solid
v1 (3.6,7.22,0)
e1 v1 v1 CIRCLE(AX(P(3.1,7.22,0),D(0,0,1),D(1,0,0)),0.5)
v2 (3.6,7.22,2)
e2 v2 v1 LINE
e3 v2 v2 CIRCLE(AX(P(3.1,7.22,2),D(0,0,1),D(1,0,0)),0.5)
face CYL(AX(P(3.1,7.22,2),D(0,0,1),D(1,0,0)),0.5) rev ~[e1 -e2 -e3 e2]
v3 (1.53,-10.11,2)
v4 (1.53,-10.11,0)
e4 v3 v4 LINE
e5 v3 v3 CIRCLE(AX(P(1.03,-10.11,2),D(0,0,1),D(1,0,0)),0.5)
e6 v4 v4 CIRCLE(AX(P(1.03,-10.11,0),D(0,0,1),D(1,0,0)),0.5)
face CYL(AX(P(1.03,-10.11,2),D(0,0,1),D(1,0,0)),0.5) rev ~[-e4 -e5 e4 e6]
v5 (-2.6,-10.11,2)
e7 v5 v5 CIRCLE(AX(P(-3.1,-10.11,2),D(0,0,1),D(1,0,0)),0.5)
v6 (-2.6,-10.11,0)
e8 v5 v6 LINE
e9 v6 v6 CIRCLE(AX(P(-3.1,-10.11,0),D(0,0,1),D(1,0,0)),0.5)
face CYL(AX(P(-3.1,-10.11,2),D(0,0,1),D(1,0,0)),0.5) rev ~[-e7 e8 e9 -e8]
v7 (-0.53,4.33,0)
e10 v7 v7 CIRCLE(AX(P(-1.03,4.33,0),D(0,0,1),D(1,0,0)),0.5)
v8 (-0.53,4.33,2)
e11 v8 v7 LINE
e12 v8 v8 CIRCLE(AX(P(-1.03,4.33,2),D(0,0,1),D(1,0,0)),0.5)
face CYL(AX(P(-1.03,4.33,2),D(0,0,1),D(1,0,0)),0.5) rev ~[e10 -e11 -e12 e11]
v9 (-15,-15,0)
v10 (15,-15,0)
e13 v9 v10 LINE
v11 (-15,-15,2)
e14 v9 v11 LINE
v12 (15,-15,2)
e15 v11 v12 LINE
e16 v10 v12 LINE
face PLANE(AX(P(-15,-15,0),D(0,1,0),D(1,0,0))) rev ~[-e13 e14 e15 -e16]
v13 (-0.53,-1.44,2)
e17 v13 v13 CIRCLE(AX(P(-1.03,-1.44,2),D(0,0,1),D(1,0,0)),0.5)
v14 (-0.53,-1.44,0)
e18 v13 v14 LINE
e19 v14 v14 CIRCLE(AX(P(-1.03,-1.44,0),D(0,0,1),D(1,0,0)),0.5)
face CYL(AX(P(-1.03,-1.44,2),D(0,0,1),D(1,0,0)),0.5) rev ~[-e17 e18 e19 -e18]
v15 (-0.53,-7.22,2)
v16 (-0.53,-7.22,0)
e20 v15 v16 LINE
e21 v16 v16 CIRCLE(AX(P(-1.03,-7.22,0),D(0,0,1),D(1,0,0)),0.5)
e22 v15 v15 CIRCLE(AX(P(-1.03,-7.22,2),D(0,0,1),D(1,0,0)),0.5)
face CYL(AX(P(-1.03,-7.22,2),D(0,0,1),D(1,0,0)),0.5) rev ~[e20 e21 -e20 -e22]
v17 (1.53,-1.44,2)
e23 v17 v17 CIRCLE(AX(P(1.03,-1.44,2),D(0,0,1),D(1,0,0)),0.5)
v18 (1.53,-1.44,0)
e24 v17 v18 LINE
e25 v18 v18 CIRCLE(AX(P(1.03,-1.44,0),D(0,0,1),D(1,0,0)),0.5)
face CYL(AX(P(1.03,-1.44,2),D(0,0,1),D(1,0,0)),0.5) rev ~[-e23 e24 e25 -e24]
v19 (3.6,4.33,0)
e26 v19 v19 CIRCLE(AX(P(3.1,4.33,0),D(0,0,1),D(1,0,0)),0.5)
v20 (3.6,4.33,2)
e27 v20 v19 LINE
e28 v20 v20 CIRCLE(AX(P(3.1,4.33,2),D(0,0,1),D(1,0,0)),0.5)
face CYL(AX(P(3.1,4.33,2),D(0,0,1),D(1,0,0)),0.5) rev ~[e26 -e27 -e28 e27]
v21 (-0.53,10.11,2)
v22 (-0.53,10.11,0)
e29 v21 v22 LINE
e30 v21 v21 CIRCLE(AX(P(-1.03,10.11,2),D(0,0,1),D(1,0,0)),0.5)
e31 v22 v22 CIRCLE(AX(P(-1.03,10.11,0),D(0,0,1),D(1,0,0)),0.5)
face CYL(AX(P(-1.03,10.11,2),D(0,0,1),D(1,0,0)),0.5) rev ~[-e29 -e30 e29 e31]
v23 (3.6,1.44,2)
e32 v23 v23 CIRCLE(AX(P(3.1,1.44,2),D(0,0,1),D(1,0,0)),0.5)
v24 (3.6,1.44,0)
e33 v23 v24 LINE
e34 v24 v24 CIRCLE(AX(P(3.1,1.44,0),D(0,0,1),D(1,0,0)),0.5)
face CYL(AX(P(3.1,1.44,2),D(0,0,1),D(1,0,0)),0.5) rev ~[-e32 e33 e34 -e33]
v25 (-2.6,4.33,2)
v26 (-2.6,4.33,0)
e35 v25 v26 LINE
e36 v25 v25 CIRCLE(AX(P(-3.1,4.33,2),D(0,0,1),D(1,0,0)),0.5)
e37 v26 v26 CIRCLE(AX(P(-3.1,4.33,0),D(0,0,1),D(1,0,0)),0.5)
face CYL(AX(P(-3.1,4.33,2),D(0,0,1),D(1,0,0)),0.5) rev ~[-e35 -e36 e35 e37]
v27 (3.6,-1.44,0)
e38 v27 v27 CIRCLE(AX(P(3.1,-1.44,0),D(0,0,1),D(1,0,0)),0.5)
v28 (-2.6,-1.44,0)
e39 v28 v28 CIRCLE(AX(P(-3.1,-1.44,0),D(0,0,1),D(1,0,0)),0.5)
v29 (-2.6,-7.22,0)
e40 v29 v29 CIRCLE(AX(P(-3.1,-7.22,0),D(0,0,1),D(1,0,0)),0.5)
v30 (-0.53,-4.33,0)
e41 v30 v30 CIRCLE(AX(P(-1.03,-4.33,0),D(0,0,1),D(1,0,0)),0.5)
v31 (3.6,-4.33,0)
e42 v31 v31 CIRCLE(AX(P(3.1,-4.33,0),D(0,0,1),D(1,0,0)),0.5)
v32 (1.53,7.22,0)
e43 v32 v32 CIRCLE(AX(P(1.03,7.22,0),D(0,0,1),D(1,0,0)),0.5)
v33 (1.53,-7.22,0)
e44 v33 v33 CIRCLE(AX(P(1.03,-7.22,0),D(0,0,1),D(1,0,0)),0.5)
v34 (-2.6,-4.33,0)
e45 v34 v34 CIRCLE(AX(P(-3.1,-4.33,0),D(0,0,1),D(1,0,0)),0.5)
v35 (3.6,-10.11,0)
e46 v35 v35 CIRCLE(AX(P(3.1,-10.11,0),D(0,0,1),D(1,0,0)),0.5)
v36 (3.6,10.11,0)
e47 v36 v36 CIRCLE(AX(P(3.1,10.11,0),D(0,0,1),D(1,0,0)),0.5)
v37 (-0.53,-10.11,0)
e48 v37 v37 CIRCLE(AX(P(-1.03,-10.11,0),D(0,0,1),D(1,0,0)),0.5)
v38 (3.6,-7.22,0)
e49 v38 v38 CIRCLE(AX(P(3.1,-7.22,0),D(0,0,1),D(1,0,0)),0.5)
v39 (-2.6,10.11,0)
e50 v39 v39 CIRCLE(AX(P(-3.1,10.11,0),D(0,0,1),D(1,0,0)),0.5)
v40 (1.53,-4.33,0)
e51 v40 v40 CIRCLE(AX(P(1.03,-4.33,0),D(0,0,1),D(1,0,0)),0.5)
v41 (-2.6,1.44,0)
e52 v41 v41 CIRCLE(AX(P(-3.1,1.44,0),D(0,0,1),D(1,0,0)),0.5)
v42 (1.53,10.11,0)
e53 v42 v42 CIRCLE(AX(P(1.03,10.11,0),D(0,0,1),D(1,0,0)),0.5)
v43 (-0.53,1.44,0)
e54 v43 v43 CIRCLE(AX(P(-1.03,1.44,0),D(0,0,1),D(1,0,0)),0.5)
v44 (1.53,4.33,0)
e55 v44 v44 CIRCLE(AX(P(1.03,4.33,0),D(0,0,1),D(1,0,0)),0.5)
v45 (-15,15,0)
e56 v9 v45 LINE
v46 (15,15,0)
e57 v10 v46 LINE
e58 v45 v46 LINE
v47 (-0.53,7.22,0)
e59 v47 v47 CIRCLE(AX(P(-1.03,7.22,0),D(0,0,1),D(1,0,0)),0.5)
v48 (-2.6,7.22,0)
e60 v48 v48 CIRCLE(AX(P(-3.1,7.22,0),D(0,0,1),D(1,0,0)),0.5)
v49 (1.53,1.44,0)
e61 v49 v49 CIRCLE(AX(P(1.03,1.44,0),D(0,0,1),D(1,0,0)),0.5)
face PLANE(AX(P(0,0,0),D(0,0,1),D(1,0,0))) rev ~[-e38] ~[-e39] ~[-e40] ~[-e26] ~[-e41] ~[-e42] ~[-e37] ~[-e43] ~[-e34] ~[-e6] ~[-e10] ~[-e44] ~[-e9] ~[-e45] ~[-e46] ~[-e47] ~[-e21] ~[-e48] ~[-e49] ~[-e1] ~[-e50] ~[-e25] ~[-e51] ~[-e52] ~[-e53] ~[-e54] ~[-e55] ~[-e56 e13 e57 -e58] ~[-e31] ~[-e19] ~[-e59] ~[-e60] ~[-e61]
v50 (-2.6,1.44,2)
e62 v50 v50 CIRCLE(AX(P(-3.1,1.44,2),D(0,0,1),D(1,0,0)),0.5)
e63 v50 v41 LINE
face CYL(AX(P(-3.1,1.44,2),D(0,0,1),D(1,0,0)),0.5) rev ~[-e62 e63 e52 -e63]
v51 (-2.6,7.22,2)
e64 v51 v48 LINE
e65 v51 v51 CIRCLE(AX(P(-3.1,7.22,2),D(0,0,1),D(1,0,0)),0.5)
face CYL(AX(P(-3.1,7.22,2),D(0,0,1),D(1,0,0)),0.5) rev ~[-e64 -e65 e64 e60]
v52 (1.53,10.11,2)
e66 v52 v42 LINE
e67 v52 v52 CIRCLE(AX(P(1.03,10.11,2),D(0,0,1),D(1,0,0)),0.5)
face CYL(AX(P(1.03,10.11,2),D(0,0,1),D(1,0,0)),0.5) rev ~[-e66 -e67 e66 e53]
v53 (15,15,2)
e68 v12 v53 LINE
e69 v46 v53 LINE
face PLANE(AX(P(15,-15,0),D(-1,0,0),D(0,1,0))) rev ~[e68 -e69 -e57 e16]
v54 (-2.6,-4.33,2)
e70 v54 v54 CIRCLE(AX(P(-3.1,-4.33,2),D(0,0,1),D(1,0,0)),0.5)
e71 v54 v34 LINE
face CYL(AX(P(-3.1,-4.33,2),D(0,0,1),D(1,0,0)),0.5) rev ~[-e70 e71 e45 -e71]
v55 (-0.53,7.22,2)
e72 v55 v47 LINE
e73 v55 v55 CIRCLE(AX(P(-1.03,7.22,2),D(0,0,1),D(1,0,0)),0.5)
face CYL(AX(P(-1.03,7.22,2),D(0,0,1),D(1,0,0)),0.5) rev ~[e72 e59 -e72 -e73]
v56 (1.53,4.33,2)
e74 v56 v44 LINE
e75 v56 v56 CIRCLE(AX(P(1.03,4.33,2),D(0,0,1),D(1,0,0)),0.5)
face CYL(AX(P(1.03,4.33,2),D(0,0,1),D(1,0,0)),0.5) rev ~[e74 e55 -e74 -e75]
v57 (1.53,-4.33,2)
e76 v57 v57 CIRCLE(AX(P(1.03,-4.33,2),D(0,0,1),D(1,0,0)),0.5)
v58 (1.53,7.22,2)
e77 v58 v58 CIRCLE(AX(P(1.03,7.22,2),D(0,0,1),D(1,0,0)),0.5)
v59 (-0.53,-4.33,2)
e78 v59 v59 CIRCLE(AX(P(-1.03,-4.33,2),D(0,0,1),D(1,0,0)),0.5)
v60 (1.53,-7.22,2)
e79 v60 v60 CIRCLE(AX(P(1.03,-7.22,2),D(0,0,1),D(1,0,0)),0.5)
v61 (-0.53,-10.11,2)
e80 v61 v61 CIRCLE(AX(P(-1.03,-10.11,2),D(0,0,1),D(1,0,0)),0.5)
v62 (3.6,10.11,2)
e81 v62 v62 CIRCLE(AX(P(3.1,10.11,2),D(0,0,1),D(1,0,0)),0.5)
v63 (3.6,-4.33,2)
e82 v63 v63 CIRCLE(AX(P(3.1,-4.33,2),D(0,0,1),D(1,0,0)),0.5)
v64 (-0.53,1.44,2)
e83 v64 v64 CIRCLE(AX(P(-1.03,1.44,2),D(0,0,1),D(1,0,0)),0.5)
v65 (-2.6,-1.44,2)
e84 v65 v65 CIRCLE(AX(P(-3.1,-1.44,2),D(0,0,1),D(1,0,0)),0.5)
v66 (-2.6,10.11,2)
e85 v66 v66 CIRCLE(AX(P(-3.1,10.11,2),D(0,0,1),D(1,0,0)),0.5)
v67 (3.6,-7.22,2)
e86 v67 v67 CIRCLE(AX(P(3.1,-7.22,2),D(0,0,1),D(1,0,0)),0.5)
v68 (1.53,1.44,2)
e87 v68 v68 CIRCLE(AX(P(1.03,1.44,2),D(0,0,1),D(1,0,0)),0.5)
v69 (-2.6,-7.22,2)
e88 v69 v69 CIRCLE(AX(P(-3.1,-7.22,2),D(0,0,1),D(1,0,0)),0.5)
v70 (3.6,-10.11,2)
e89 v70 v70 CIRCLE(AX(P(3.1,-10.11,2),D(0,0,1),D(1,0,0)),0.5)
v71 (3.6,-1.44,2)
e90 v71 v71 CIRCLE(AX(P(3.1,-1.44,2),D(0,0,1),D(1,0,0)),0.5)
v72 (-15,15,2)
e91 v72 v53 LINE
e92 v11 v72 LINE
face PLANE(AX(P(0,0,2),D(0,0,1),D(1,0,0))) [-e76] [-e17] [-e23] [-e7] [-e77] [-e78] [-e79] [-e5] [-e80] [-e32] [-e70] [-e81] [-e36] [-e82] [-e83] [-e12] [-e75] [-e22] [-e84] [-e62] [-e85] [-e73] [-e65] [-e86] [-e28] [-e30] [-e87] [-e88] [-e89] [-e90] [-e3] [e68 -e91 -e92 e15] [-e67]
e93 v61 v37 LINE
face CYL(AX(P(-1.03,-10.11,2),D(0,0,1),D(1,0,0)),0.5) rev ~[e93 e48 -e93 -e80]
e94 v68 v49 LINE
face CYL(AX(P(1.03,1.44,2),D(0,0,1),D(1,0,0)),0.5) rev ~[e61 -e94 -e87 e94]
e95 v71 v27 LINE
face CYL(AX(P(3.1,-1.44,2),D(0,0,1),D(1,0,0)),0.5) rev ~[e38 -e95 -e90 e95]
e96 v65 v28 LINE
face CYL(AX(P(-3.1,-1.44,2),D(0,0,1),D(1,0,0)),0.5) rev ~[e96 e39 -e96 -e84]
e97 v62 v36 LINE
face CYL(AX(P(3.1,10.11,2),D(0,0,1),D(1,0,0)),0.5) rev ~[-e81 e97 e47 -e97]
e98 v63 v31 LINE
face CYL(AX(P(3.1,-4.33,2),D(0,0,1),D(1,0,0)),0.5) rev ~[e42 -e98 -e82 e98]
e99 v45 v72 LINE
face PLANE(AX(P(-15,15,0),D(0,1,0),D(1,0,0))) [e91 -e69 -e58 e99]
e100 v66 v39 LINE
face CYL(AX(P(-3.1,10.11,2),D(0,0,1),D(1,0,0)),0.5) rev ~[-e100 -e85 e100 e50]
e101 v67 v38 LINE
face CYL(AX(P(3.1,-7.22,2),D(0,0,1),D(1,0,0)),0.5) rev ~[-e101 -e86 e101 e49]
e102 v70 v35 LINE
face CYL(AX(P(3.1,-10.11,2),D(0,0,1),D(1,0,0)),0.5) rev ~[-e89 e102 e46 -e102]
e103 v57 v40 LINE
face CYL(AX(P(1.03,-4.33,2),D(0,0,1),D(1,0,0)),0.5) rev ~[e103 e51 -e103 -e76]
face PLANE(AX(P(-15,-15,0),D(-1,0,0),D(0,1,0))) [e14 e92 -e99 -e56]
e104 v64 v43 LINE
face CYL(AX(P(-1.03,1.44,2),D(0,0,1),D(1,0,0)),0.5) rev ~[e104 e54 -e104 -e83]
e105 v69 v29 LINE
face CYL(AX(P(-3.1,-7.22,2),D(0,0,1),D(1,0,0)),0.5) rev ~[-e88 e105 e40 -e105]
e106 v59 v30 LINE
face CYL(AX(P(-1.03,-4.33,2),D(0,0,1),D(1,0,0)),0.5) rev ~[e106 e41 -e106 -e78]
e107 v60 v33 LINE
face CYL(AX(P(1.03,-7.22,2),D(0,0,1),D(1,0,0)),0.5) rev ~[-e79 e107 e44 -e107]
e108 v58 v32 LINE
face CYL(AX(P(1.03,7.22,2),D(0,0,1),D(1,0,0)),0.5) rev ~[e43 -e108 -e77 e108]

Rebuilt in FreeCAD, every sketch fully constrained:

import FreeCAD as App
import Part
import Sketcher
Q = App.Units.Quantity


def add_polygon(sketch, points):
    """Adds a closed chain of lines whose ends are joined by coincident constraints."""
    first, n = sketch.GeometryCount, len(points)
    for a, b in zip(points, points[1:] + points[:1]):
        sketch.addGeometry(Part.LineSegment(App.Vector(*a, 0), App.Vector(*b, 0)), False)
    for i in range(n):
        sketch.addConstraint(Sketcher.Constraint("Coincident", first + i, 2, first + (i + 1) % n, 1))

doc = App.newDocument("Part")
params = doc.addObject("Spreadsheet::Sheet", "Params")
for row, (alias, value) in enumerate([
    ("sketch1_width", "30 mm"),
    ("pad1_length", "2 mm"),
    ("sketch2_diameter", "1 mm"),
    ("pocket1_length", "10 mm"),
], start=1):
    params.set(f"A{row}", alias)
    params.set(f"B{row}", "=" + value)
    params.setAlias(f"B{row}", alias)

body = doc.addObject("PartDesign::Body", "Body")

sketch1 = body.newObject("Sketcher::SketchObject", "Sketch")
sketch1.AttachmentSupport = (doc.getObject("XY_Plane"), [""])
sketch1.MapMode = "FlatFace"
add_polygon(sketch1, [(-15, 15), (-15, -15), (15, -15), (15, 15)])
sketch1.addConstraint(Sketcher.Constraint("Vertical", 0))
sketch1.addConstraint(Sketcher.Constraint("Horizontal", 1))
sketch1.addConstraint(Sketcher.Constraint("Vertical", 2))
sketch1.addConstraint(Sketcher.Constraint("Horizontal", 3))
sketch1.addConstraint(Sketcher.Constraint("Symmetric", 0, 2, 2, 2, -1, 1))
sketch1.addConstraint(Sketcher.Constraint("Equal", 3, 0))
sketch1.addConstraint(Sketcher.Constraint("DistanceX", 1, 1, 1, 2, Q("30 mm")))
sketch1.setExpression("Constraints[10]", "Params.sketch1_width")
pad1 = body.newObject("PartDesign::Pad", "Pad")
pad1.Profile = sketch1
pad1.setExpression("Length", "Params.pad1_length")

sketch2 = body.newObject("Sketcher::SketchObject", "Sketch001")
sketch2.AttachmentSupport = (doc.getObject("XY_Plane"), [""])
sketch2.MapMode = "FlatFace"
sketch2.AttachmentOffset = App.Placement(App.Vector(0, 0, 2), App.Rotation())
sketch2.addGeometry(Part.Circle(App.Vector(-3.1, -10.1, 0), App.Vector(0, 0, 1), 0.5), False)
sketch2.addGeometry(Part.Circle(App.Vector(-3.1, -7.2, 0), App.Vector(0, 0, 1), 0.5), False)
sketch2.addGeometry(Part.Circle(App.Vector(-3.1, -4.3, 0), App.Vector(0, 0, 1), 0.5), False)
sketch2.addGeometry(Part.Circle(App.Vector(-3.1, -1.4, 0), App.Vector(0, 0, 1), 0.5), False)
sketch2.addGeometry(Part.Circle(App.Vector(-3.1, 1.4, 0), App.Vector(0, 0, 1), 0.5), False)
sketch2.addGeometry(Part.Circle(App.Vector(-3.1, 4.3, 0), App.Vector(0, 0, 1), 0.5), False)
sketch2.addGeometry(Part.Circle(App.Vector(-3.1, 7.2, 0), App.Vector(0, 0, 1), 0.5), False)
sketch2.addGeometry(Part.Circle(App.Vector(-3.1, 10.1, 0), App.Vector(0, 0, 1), 0.5), False)
sketch2.addGeometry(Part.Circle(App.Vector(-1, -10.1, 0), App.Vector(0, 0, 1), 0.5), False)
sketch2.addGeometry(Part.Circle(App.Vector(-1, -7.2, 0), App.Vector(0, 0, 1), 0.5), False)
sketch2.addGeometry(Part.Circle(App.Vector(-1, -4.3, 0), App.Vector(0, 0, 1), 0.5), False)
sketch2.addGeometry(Part.Circle(App.Vector(-1, -1.4, 0), App.Vector(0, 0, 1), 0.5), False)
sketch2.addGeometry(Part.Circle(App.Vector(-1, 1.4, 0), App.Vector(0, 0, 1), 0.5), False)
sketch2.addGeometry(Part.Circle(App.Vector(-1, 4.3, 0), App.Vector(0, 0, 1), 0.5), False)
sketch2.addGeometry(Part.Circle(App.Vector(-1, 7.2, 0), App.Vector(0, 0, 1), 0.5), False)
sketch2.addGeometry(Part.Circle(App.Vector(-1, 10.1, 0), App.Vector(0, 0, 1), 0.5), False)
sketch2.addGeometry(Part.Circle(App.Vector(1, -10.1, 0), App.Vector(0, 0, 1), 0.5), False)
sketch2.addGeometry(Part.Circle(App.Vector(1, -7.2, 0), App.Vector(0, 0, 1), 0.5), False)
sketch2.addGeometry(Part.Circle(App.Vector(1, -4.3, 0), App.Vector(0, 0, 1), 0.5), False)
sketch2.addGeometry(Part.Circle(App.Vector(1, -1.4, 0), App.Vector(0, 0, 1), 0.5), False)
sketch2.addGeometry(Part.Circle(App.Vector(1, 1.4, 0), App.Vector(0, 0, 1), 0.5), False)
sketch2.addGeometry(Part.Circle(App.Vector(1, 4.3, 0), App.Vector(0, 0, 1), 0.5), False)
sketch2.addGeometry(Part.Circle(App.Vector(1, 7.2, 0), App.Vector(0, 0, 1), 0.5), False)
sketch2.addGeometry(Part.Circle(App.Vector(1, 10.1, 0), App.Vector(0, 0, 1), 0.5), False)
sketch2.addGeometry(Part.Circle(App.Vector(3.1, -10.1, 0), App.Vector(0, 0, 1), 0.5), False)
sketch2.addGeometry(Part.Circle(App.Vector(3.1, -7.2, 0), App.Vector(0, 0, 1), 0.5), False)
sketch2.addGeometry(Part.Circle(App.Vector(3.1, -4.3, 0), App.Vector(0, 0, 1), 0.5), False)
sketch2.addGeometry(Part.Circle(App.Vector(3.1, -1.4, 0), App.Vector(0, 0, 1), 0.5), False)
sketch2.addGeometry(Part.Circle(App.Vector(3.1, 1.4, 0), App.Vector(0, 0, 1), 0.5), False)
sketch2.addGeometry(Part.Circle(App.Vector(3.1, 4.3, 0), App.Vector(0, 0, 1), 0.5), False)
sketch2.addGeometry(Part.Circle(App.Vector(3.1, 7.2, 0), App.Vector(0, 0, 1), 0.5), False)
sketch2.addGeometry(Part.Circle(App.Vector(3.1, 10.1, 0), App.Vector(0, 0, 1), 0.5), False)
sketch2.addConstraint(Sketcher.Constraint("Equal", 0, 1))
sketch2.addConstraint(Sketcher.Constraint("Equal", 1, 2))
sketch2.addConstraint(Sketcher.Constraint("Equal", 2, 3))
sketch2.addConstraint(Sketcher.Constraint("Equal", 3, 4))
sketch2.addConstraint(Sketcher.Constraint("Equal", 4, 5))
sketch2.addConstraint(Sketcher.Constraint("Equal", 5, 6))
sketch2.addConstraint(Sketcher.Constraint("Equal", 6, 7))
sketch2.addConstraint(Sketcher.Constraint("Equal", 7, 8))
sketch2.addConstraint(Sketcher.Constraint("Equal", 8, 9))
sketch2.addConstraint(Sketcher.Constraint("Equal", 9, 10))
sketch2.addConstraint(Sketcher.Constraint("Equal", 10, 11))
sketch2.addConstraint(Sketcher.Constraint("Equal", 11, 12))
sketch2.addConstraint(Sketcher.Constraint("Equal", 12, 13))
sketch2.addConstraint(Sketcher.Constraint("Equal", 13, 14))
sketch2.addConstraint(Sketcher.Constraint("Equal", 14, 15))
sketch2.addConstraint(Sketcher.Constraint("Equal", 15, 16))
sketch2.addConstraint(Sketcher.Constraint("Equal", 16, 17))
sketch2.addConstraint(Sketcher.Constraint("Equal", 17, 18))
sketch2.addConstraint(Sketcher.Constraint("Equal", 18, 19))
sketch2.addConstraint(Sketcher.Constraint("Equal", 19, 20))
sketch2.addConstraint(Sketcher.Constraint("Equal", 20, 21))
sketch2.addConstraint(Sketcher.Constraint("Equal", 21, 22))
sketch2.addConstraint(Sketcher.Constraint("Equal", 22, 23))
sketch2.addConstraint(Sketcher.Constraint("Equal", 23, 24))
sketch2.addConstraint(Sketcher.Constraint("Equal", 24, 25))
sketch2.addConstraint(Sketcher.Constraint("Equal", 25, 26))
sketch2.addConstraint(Sketcher.Constraint("Equal", 26, 27))
sketch2.addConstraint(Sketcher.Constraint("Equal", 27, 28))
sketch2.addConstraint(Sketcher.Constraint("Equal", 28, 29))
sketch2.addConstraint(Sketcher.Constraint("Equal", 29, 30))
sketch2.addConstraint(Sketcher.Constraint("Equal", 30, 31))
sketch2.addConstraint(Sketcher.Constraint("Symmetric", 15, 3, 16, 3, -1, 1))
sketch2.addConstraint(Sketcher.Constraint("Symmetric", 14, 3, 17, 3, -1, 1))
sketch2.addConstraint(Sketcher.Constraint("Symmetric", 13, 3, 18, 3, -1, 1))
sketch2.addConstraint(Sketcher.Constraint("Symmetric", 12, 3, 19, 3, -1, 1))
sketch2.addConstraint(Sketcher.Constraint("Symmetric", 11, 3, 20, 3, -1, 1))
sketch2.addConstraint(Sketcher.Constraint("Symmetric", 10, 3, 21, 3, -1, 1))
sketch2.addConstraint(Sketcher.Constraint("Symmetric", 9, 3, 22, 3, -1, 1))
sketch2.addConstraint(Sketcher.Constraint("Symmetric", 8, 3, 23, 3, -1, 1))
sketch2.addConstraint(Sketcher.Constraint("Symmetric", 7, 3, 24, 3, -1, 1))
sketch2.addConstraint(Sketcher.Constraint("Symmetric", 6, 3, 25, 3, -1, 1))
sketch2.addConstraint(Sketcher.Constraint("Symmetric", 5, 3, 26, 3, -1, 1))
sketch2.addConstraint(Sketcher.Constraint("Symmetric", 4, 3, 27, 3, -1, 1))
sketch2.addConstraint(Sketcher.Constraint("Symmetric", 3, 3, 28, 3, -1, 1))
sketch2.addConstraint(Sketcher.Constraint("Symmetric", 2, 3, 29, 3, -1, 1))
sketch2.addConstraint(Sketcher.Constraint("Symmetric", 1, 3, 30, 3, -1, 1))
sketch2.addConstraint(Sketcher.Constraint("Symmetric", 0, 3, 31, 3, -1, 1))
sketch2.addConstraint(Sketcher.Constraint("Symmetric", 8, 3, 16, 3, -2))
sketch2.addConstraint(Sketcher.Constraint("Symmetric", 9, 3, 17, 3, -2))
sketch2.addConstraint(Sketcher.Constraint("Symmetric", 10, 3, 18, 3, -2))
sketch2.addConstraint(Sketcher.Constraint("Symmetric", 11, 3, 19, 3, -2))
sketch2.addConstraint(Sketcher.Constraint("Symmetric", 0, 3, 24, 3, -2))
sketch2.addConstraint(Sketcher.Constraint("Symmetric", 1, 3, 25, 3, -2))
sketch2.addConstraint(Sketcher.Constraint("Symmetric", 2, 3, 26, 3, -2))
sketch2.addConstraint(Sketcher.Constraint("Symmetric", 3, 3, 27, 3, -2))
sketch2.addConstraint(Sketcher.Constraint("Horizontal", 0, 3, 8, 3))
sketch2.addConstraint(Sketcher.Constraint("Horizontal", 1, 3, 9, 3))
sketch2.addConstraint(Sketcher.Constraint("Horizontal", 2, 3, 10, 3))
sketch2.addConstraint(Sketcher.Constraint("Horizontal", 3, 3, 11, 3))
sketch2.addConstraint(Sketcher.Constraint("Vertical", 0, 3, 1, 3))
sketch2.addConstraint(Sketcher.Constraint("Vertical", 1, 3, 2, 3))
sketch2.addConstraint(Sketcher.Constraint("Vertical", 2, 3, 3, 3))
sketch2.addConstraint(Sketcher.Constraint("Vertical", 8, 3, 9, 3))
sketch2.addConstraint(Sketcher.Constraint("Vertical", 9, 3, 10, 3))
sketch2.addConstraint(Sketcher.Constraint("Vertical", 10, 3, 11, 3))
sketch2.addConstraint(Sketcher.Constraint("Diameter", 0, Q("1 mm")))
sketch2.addConstraint(Sketcher.Constraint("DistanceX", 0, 3, -1, 1, Q("3.1 mm")))
sketch2.addConstraint(Sketcher.Constraint("DistanceY", 0, 3, -1, 1, Q("10.11 mm")))
sketch2.addConstraint(Sketcher.Constraint("DistanceY", 1, 3, -1, 1, Q("7.22 mm")))
sketch2.addConstraint(Sketcher.Constraint("DistanceY", 2, 3, -1, 1, Q("4.33 mm")))
sketch2.addConstraint(Sketcher.Constraint("DistanceY", 3, 3, -1, 1, Q("1.44 mm")))
sketch2.addConstraint(Sketcher.Constraint("DistanceX", 8, 3, -1, 1, Q("1.03 mm")))
sketch2.setExpression("Constraints[65]", "Params.sketch2_diameter")
pocket1 = body.newObject("PartDesign::Pocket", "Pocket")
pocket1.Profile = sketch2
pocket1.setExpression("Length", "Params.pocket1_length")

doc.recompute()
